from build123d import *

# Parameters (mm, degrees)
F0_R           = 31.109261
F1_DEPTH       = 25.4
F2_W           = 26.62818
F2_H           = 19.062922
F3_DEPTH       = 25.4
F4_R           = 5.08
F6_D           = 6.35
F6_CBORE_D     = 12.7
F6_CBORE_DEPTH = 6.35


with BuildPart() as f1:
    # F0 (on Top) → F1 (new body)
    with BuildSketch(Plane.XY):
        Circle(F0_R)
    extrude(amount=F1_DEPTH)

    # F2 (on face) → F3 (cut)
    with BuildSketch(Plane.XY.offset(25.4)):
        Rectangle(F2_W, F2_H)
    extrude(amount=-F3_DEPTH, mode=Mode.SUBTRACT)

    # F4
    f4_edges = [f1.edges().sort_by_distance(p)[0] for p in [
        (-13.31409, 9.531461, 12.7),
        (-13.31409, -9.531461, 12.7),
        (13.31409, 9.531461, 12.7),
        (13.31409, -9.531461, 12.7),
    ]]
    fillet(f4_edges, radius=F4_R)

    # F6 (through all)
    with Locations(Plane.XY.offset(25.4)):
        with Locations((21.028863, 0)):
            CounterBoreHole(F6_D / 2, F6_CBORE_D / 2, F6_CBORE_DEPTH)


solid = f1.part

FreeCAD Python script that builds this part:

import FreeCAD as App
import Part
import Sketcher
from FreeCAD import Vector
Q = App.Units.Quantity


def edges_at(feature, points):
    """Names of the edges that pass closest to the given points."""
    edges = feature.Shape.Edges
    near = lambda p: min(range(len(edges)), key=lambda i: edges[i].distToShape(Part.Vertex(*p))[0])
    return sorted({f"Edge{near(p) + 1}" for p in points})

doc = App.newDocument("Part")
body = doc.addObject("PartDesign::Body", "Body")

sketch1 = body.newObject("Sketcher::SketchObject", "Sketch")
sketch1.AttachmentSupport = (doc.getObject("XY_Plane"), [""])
sketch1.MapMode = "FlatFace"
sketch1.addGeometry(Part.Circle(Vector(0, 0, 0), Vector(0, 0, 1), 31), False)
sketch1.addConstraint([
    Sketcher.Constraint("Coincident", 0, 3, -1, 1),
    Sketcher.Constraint("Diameter", 0, 62.218522),
])
pad1 = body.newObject("PartDesign::Pad", "Pad")
pad1.Profile = sketch1
pad1.Length = Q("1 in")

sketch2 = body.newObject("Sketcher::SketchObject", "Sketch001")
sketch2.AttachmentSupport = (doc.getObject("XY_Plane"), [""])
sketch2.MapMode = "FlatFace"
sketch2.AttachmentOffset = App.Placement(Vector(0, 0, 1 * 25.4), App.Rotation())
sketch2.addGeometry([
    Part.LineSegment(Vector(-13, 10, 0), Vector(-13, -10, 0)),
    Part.LineSegment(Vector(-13, -10, 0), Vector(13, -10, 0)),
    Part.LineSegment(Vector(13, -10, 0), Vector(13, 10, 0)),
    Part.LineSegment(Vector(13, 10, 0), Vector(-13, 10, 0)),
], False)
sketch2.addConstraint([
    Sketcher.Constraint("Coincident", 0, 2, 1, 1),
    Sketcher.Constraint("Coincident", 1, 2, 2, 1),
    Sketcher.Constraint("Coincident", 2, 2, 3, 1),
    Sketcher.Constraint("Coincident", 3, 2, 0, 1),
    Sketcher.Constraint("Vertical", 0),
    Sketcher.Constraint("Horizontal", 1),
    Sketcher.Constraint("Vertical", 2),
    Sketcher.Constraint("Horizontal", 3),
    Sketcher.Constraint("Symmetric", 0, 2, 2, 2, -1, 1),
    Sketcher.Constraint("DistanceX", 1, 1, 1, 2, 26.62818),
    Sketcher.Constraint("DistanceY", 0, 2, 0, 1, 19.062922),
])
pocket1 = body.newObject("PartDesign::Pocket", "Pocket")
pocket1.Profile = sketch2
pocket1.Length = Q("1 in")
doc.recompute()

fillet = body.newObject("PartDesign::Fillet", "Fillet")
fillet.Base = (pocket1, edges_at(pocket1, [
    (-13.314, 9.531, 12.7),
    (-13.314, -9.531, 12.7),
    (13.314, 9.531, 12.7),
    (13.314, -9.531, 12.7),
]))
fillet.Radius = Q("0.2 in")

sketch3 = body.newObject("Sketcher::SketchObject", "Sketch002")
sketch3.AttachmentSupport = (doc.getObject("XY_Plane"), [""])
sketch3.MapMode = "FlatFace"
sketch3.AttachmentOffset = App.Placement(Vector(0, 0, 1 * 25.4), App.Rotation())
sketch3.addGeometry(Part.Circle(Vector(21, 0, 0), Vector(0, 0, 1), 3.2), False)
sketch3.addConstraint([
    Sketcher.Constraint("PointOnObject", 0, 3, -1),
    Sketcher.Constraint("Diameter", 0, Q("0.25 in")),
    Sketcher.Constraint("DistanceX", -1, 1, 0, 3, 21.028863),
])
doc.recompute()
hole = body.newObject("PartDesign::Hole", "Hole")
hole.Profile = sketch3
hole.ThreadType = "None"
hole.Diameter = Q("0.25 in")
hole.DepthType = "ThroughAll"
hole.HoleCutType = "Counterbore"
hole.HoleCutDiameter = Q("0.5 in")
hole.HoleCutDepth = Q("0.25 in")

doc.recompute()
